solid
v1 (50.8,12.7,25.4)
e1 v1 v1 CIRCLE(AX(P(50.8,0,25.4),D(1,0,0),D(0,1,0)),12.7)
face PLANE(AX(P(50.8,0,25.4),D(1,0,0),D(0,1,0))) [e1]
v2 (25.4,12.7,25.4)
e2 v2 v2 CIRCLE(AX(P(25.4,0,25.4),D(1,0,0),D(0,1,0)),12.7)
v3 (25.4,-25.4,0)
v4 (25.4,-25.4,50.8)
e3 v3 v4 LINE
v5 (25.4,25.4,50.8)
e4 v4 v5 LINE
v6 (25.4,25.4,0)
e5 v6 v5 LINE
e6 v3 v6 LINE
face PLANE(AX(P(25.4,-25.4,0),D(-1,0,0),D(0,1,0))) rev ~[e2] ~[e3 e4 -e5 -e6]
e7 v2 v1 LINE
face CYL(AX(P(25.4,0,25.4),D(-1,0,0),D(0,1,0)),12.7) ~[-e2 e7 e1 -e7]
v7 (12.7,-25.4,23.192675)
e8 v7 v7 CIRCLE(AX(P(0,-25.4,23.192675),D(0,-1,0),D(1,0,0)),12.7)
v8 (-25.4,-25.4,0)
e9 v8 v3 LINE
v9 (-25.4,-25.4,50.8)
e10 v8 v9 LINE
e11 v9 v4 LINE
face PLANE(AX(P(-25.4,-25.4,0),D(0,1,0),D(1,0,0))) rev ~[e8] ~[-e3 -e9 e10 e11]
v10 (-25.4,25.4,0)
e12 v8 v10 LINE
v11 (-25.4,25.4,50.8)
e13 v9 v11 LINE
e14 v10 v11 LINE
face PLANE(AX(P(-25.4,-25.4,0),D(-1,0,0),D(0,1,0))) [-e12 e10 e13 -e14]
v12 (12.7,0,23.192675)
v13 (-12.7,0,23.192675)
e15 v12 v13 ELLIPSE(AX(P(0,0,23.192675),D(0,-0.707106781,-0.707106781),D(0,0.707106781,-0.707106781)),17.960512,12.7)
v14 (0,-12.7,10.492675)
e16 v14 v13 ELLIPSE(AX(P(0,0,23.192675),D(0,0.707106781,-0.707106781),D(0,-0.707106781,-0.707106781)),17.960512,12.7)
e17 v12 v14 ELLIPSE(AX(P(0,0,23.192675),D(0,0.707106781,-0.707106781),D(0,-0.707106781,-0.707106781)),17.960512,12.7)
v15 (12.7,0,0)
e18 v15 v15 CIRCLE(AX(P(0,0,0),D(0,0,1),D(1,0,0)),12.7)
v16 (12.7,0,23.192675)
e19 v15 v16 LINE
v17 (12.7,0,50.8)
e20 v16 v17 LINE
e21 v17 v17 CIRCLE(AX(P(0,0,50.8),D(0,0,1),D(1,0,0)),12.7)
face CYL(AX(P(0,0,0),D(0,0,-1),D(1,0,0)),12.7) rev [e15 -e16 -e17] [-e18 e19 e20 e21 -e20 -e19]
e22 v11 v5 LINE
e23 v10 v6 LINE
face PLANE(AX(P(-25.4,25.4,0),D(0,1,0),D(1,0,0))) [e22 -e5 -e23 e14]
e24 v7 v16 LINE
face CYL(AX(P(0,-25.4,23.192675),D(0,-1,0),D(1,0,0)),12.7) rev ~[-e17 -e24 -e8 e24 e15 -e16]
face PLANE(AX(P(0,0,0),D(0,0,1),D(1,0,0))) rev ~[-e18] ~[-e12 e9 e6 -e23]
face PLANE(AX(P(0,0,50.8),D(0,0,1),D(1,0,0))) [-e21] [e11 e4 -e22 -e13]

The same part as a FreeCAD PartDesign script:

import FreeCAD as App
import Part
import Sketcher

V = App.Vector
Q = App.Units.Quantity

doc = App.newDocument("Part")
params = doc.addObject("Spreadsheet::Sheet", "Params")
for row, (alias, value) in enumerate([
    ("sketch1_diameter", "1 in"),
    ("sketch1_width", "2 in"),
    ("pad1_length", "2 in"),
    ("sketch2_diameter", "1 in"),
    ("pocket1_length", "1 in"),
    ("sketch3_diameter", "1 in"),
    ("pad2_length", "1 in"),
], start=1):
    params.set(f"A{row}", alias)
    params.set(f"B{row}", "=" + value)
    params.setAlias(f"B{row}", alias)

body = doc.addObject("PartDesign::Body", "Body")

sketch1 = doc.addObject("Sketcher::SketchObject", "Sketch")
body.addObject(sketch1)
sketch1.AttachmentSupport = (doc.XY_Plane, [""])
sketch1.MapMode = "FlatFace"
sketch1.addGeometry(Part.LineSegment(V(-25.4, 25.4, 0), V(-25.4, -25.4, 0)), False)
sketch1.addGeometry(Part.LineSegment(V(-25.4, -25.4, 0), V(25.4, -25.4, 0)), False)
sketch1.addGeometry(Part.LineSegment(V(25.4, -25.4, 0), V(25.4, 25.4, 0)), False)
sketch1.addGeometry(Part.LineSegment(V(25.4, 25.4, 0), V(-25.4, 25.4, 0)), False)
sketch1.addGeometry(Part.Circle(V(0, 0, 0), V(0, 0, 1), 12.7), False)
sketch1.addConstraint(Sketcher.Constraint("Coincident", 0, 2, 1, 1))
sketch1.addConstraint(Sketcher.Constraint("Coincident", 1, 2, 2, 1))
sketch1.addConstraint(Sketcher.Constraint("Coincident", 2, 2, 3, 1))
sketch1.addConstraint(Sketcher.Constraint("Coincident", 3, 2, 0, 1))
sketch1.addConstraint(Sketcher.Constraint("Vertical", 0))
sketch1.addConstraint(Sketcher.Constraint("Horizontal", 1))
sketch1.addConstraint(Sketcher.Constraint("Vertical", 2))
sketch1.addConstraint(Sketcher.Constraint("Horizontal", 3))
sketch1.addConstraint(Sketcher.Constraint("Coincident", 4, 3, -1, 1))
sketch1.addConstraint(Sketcher.Constraint("Symmetric", 0, 2, 2, 2, -1, 1))
sketch1.addConstraint(Sketcher.Constraint("Equal", 3, 0))
sketch1.addConstraint(Sketcher.Constraint("Diameter", 4, Q("1 in")))
sketch1.addConstraint(Sketcher.Constraint("DistanceX", 1, 1, 1, 2, Q("2 in")))
sketch1.setExpression("Constraints[11]", "Params.sketch1_diameter")
sketch1.setExpression("Constraints[12]", "Params.sketch1_width")
pad1 = doc.addObject("PartDesign::Pad", "Pad")
body.addObject(pad1)
pad1.Profile = sketch1
pad1.setExpression("Length", "Params.pad1_length")

sketch2 = doc.addObject("Sketcher::SketchObject", "Sketch001")
body.addObject(sketch2)
sketch2.AttachmentSupport = (doc.XZ_Plane, [""])
sketch2.MapMode = "FlatFace"
sketch2.AttachmentOffset = App.Placement(V(0, 0, 1 * 25.4), App.Rotation())
sketch2.addGeometry(Part.Circle(V(0, 23.192675, 0), V(0, 0, 1), 12.7), False)
sketch2.addConstraint(Sketcher.Constraint("PointOnObject", 0, 3, -2))
sketch2.addConstraint(Sketcher.Constraint("Diameter", 0, Q("1 in")))
sketch2.addConstraint(Sketcher.Constraint("DistanceY", -1, 1, 0, 3, 23.192675))
sketch2.setExpression("Constraints[1]", "Params.sketch2_diameter")
pocket1 = doc.addObject("PartDesign::Pocket", "Pocket")
body.addObject(pocket1)
pocket1.Profile = sketch2
pocket1.setExpression("Length", "Params.pocket1_length")

sketch3 = doc.addObject("Sketcher::SketchObject", "Sketch002")
body.addObject(sketch3)
sketch3.AttachmentSupport = (doc.YZ_Plane, [""])
sketch3.MapMode = "FlatFace"
sketch3.AttachmentOffset = App.Placement(V(0, 0, 1 * 25.4), App.Rotation())
sketch3.addGeometry(Part.Circle(V(0, 25.4, 0), V(0, 0, 1), 12.7), False)
sketch3.addConstraint(Sketcher.Constraint("PointOnObject", 0, 3, -2))
sketch3.addConstraint(Sketcher.Constraint("Diameter", 0, Q("1 in")))
sketch3.addConstraint(Sketcher.Constraint("DistanceY", -1, 1, 0, 3, Q("1 in")))
sketch3.setExpression("Constraints[1]", "Params.sketch3_diameter")
pad2 = doc.addObject("PartDesign::Pad", "Pad001")
body.addObject(pad2)
pad2.Profile = sketch3
pad2.setExpression("Length", "Params.pad2_length")

doc.recompute()
